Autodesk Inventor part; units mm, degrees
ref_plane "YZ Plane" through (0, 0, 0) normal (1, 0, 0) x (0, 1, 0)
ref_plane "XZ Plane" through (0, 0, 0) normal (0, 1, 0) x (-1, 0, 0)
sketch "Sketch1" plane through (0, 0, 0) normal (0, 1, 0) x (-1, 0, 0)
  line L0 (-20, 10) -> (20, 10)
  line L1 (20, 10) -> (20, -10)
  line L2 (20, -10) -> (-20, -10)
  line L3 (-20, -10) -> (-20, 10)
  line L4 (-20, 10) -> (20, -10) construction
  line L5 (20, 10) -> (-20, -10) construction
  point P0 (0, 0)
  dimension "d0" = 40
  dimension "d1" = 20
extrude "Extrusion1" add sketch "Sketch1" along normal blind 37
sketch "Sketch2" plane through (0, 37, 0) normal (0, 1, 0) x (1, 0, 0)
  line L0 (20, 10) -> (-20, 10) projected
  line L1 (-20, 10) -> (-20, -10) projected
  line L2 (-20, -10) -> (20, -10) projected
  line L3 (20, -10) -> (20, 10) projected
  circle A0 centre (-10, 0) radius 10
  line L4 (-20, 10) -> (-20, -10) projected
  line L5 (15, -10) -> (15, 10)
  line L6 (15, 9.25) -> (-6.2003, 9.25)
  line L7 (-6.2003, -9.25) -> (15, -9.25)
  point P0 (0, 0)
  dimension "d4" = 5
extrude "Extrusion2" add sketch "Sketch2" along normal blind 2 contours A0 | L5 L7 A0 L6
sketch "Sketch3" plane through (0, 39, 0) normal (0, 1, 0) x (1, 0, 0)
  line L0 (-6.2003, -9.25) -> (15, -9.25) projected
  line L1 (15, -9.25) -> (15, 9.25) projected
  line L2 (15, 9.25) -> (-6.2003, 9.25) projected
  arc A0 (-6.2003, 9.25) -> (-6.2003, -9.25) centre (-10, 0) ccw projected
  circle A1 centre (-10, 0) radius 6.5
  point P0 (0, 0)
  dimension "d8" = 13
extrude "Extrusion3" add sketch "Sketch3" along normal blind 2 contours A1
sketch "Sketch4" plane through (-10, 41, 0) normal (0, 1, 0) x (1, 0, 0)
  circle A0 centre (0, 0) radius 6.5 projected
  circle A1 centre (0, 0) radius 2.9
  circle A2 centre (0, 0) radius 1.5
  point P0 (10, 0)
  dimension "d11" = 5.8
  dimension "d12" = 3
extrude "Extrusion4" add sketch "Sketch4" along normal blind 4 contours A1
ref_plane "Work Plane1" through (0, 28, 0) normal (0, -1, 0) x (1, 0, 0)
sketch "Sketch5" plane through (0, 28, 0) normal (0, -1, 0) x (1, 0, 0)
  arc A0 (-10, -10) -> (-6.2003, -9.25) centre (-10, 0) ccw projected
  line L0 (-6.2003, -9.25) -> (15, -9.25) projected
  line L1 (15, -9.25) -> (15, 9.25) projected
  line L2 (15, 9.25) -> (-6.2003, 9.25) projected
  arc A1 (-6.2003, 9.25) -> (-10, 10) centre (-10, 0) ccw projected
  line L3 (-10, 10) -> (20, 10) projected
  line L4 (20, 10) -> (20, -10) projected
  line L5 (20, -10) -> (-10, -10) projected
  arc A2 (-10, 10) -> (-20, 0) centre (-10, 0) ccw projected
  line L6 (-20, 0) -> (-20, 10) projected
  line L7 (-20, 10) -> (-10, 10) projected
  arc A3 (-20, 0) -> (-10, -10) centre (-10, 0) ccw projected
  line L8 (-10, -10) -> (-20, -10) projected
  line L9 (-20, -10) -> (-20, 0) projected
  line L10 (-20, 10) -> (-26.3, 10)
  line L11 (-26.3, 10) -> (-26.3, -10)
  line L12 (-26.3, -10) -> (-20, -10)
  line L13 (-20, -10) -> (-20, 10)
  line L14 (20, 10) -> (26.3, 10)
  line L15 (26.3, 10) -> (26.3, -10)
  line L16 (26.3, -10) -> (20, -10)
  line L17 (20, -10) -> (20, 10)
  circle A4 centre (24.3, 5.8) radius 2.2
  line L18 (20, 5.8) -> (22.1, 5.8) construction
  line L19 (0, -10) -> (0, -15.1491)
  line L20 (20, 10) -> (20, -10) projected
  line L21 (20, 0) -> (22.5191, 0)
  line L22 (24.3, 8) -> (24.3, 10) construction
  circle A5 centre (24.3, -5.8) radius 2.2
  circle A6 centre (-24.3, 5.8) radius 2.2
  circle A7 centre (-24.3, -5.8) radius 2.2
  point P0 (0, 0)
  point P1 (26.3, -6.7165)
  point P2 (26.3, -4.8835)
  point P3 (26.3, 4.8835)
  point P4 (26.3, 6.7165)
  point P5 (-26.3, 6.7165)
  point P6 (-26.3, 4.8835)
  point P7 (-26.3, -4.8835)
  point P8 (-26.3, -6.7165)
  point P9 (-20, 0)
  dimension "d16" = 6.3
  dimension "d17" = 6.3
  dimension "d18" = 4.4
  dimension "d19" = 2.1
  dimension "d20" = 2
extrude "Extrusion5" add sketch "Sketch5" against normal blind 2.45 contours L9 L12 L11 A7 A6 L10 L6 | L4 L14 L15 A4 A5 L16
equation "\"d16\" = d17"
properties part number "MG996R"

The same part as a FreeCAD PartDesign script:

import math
import FreeCAD as App
import Part
import Sketcher

doc = App.newDocument("Part")
body = doc.addObject("PartDesign::Body", "Body")

sketch1 = body.newObject("Sketcher::SketchObject", "Sketch")
sketch1.AttachmentSupport = (doc.getObject("XZ_Plane"), [""])
sketch1.MapMode = "FlatFace"
sketch1.addGeometry([
    Part.LineSegment(App.Vector(-20, 10, 0), App.Vector(20, 10, 0)),
    Part.LineSegment(App.Vector(20, 10, 0), App.Vector(20, -10, 0)),
    Part.LineSegment(App.Vector(20, -10, 0), App.Vector(-20, -10, 0)),
    Part.LineSegment(App.Vector(-20, -10, 0), App.Vector(-20, 10, 0)),
], False)
sketch1.addConstraint([
    Sketcher.Constraint("Coincident", 0, 2, 1, 1),
    Sketcher.Constraint("Coincident", 1, 2, 2, 1),
    Sketcher.Constraint("Coincident", 2, 2, 3, 1),
    Sketcher.Constraint("Coincident", 3, 2, 0, 1),
    Sketcher.Constraint("Horizontal", 0),
    Sketcher.Constraint("Vertical", 1),
    Sketcher.Constraint("Horizontal", 2),
    Sketcher.Constraint("Vertical", 3),
    Sketcher.Constraint("Symmetric", 0, 2, 2, 2, -1, 1),
    Sketcher.Constraint("DistanceX", 0, 1, 0, 2, 40.0),
    Sketcher.Constraint("DistanceY", 1, 2, 1, 1, 20.0),
])
pad1 = body.newObject("PartDesign::Pad", "Pad")
pad1.Profile = sketch1
pad1.Length = 37
pad1.Reversed = True

sketch2 = body.newObject("Sketcher::SketchObject", "Sketch001")
sketch2.AttachmentSupport = (doc.getObject("XZ_Plane"), [""])
sketch2.MapMode = "FlatFace"
sketch2.AttachmentOffset = App.Placement(App.Vector(0, 0, -37), App.Rotation())
sketch2.addGeometry([
    Part.ArcOfCircle(Part.Circle(App.Vector(-10, 0, 0), App.Vector(0, 0, 1), 10), math.radians(68), math.radians(292)),
    Part.LineSegment(App.Vector(-6, 9, 0), App.Vector(15, 9, 0)),
    Part.LineSegment(App.Vector(15, 9, 0), App.Vector(15, -9, 0)),
    Part.LineSegment(App.Vector(15, -9, 0), App.Vector(-6, -9, 0)),
], False)
sketch2.addConstraint([
    Sketcher.Constraint("Coincident", 0, 1, 1, 1),
    Sketcher.Constraint("Coincident", 1, 2, 2, 1),
    Sketcher.Constraint("Coincident", 2, 2, 3, 1),
    Sketcher.Constraint("Coincident", 3, 2, 0, 2),
    Sketcher.Constraint("Horizontal", 1),
    Sketcher.Constraint("Vertical", 2),
    Sketcher.Constraint("Horizontal", 3),
    Sketcher.Constraint("Symmetric", 0, 1, 3, 2, -1),
    Sketcher.Constraint("Radius", 0, 10.0),
    Sketcher.Constraint("DistanceY", 2, 2, 2, 1, 18.5),
    Sketcher.Constraint("DistanceX", 0, 3, -1, 1, 10.0),
    Sketcher.Constraint("DistanceX", -1, 1, 1, 2, 15.0),
])
pad2 = body.newObject("PartDesign::Pad", "Pad001")
pad2.Profile = sketch2
pad2.Length = 2
pad2.Reversed = True

sketch3 = body.newObject("Sketcher::SketchObject", "Sketch002")
sketch3.AttachmentSupport = (doc.getObject("XZ_Plane"), [""])
sketch3.MapMode = "FlatFace"
sketch3.AttachmentOffset = App.Placement(App.Vector(0, 0, -39), App.Rotation())
sketch3.addGeometry(Part.Circle(App.Vector(-10, 0, 0), App.Vector(0, 0, 1), 6), False)
sketch3.addConstraint([
    Sketcher.Constraint("PointOnObject", 0, 3, -1),
    Sketcher.Constraint("Diameter", 0, 13.0),
    Sketcher.Constraint("DistanceX", 0, 3, -1, 1, 10.0),
])
pad3 = body.newObject("PartDesign::Pad", "Pad002")
pad3.Profile = sketch3
pad3.Length = 2
pad3.Reversed = True

sketch4 = body.newObject("Sketcher::SketchObject", "Sketch003")
sketch4.AttachmentSupport = (doc.getObject("XZ_Plane"), [""])
sketch4.MapMode = "FlatFace"
sketch4.AttachmentOffset = App.Placement(App.Vector(0, 0, -41), App.Rotation())
sketch4.addGeometry([
    Part.Circle(App.Vector(-10, 0, 0), App.Vector(0, 0, 1), 2.9),
    Part.Circle(App.Vector(-10, 0, 0), App.Vector(0, 0, 1), 1.5),
], False)
sketch4.addConstraint([
    Sketcher.Constraint("Coincident", 1, 3, 0, 3),
    Sketcher.Constraint("PointOnObject", 0, 3, -1),
    Sketcher.Constraint("Diameter", 1, 3.0),
    Sketcher.Constraint("Diameter", 0, 5.8),
    Sketcher.Constraint("DistanceX", 0, 3, -1, 1, 10.0),
])
pad4 = body.newObject("PartDesign::Pad", "Pad003")
pad4.Profile = sketch4
pad4.Length = 4
pad4.Reversed = True

sketch5 = body.newObject("Sketcher::SketchObject", "Sketch004")
sketch5.AttachmentSupport = (doc.getObject("XZ_Plane"), [""])
sketch5.MapMode = "FlatFace"
sketch5.AttachmentOffset = App.Placement(App.Vector(0, 0, -28), App.Rotation())
sketch5.addGeometry([
    Part.LineSegment(App.Vector(-20, -10, 0), App.Vector(-20, 10, 0)),
    Part.LineSegment(App.Vector(-20, 10, 0), App.Vector(-26.3, 10, 0)),
    Part.LineSegment(App.Vector(-26.3, 10, 0), App.Vector(-26.3, 6.7, 0)),
    Part.ArcOfCircle(Part.Circle(App.Vector(-24.3, 5.8, 0), App.Vector(0, 0, 1), 2.2), math.radians(-155), math.radians(155)),
    Part.LineSegment(App.Vector(-26.3, 4.9, 0), App.Vector(-26.3, -4.9, 0)),
    Part.ArcOfCircle(Part.Circle(App.Vector(-24.3, -5.8, 0), App.Vector(0, 0, 1), 2.2), math.radians(-155), math.radians(155)),
    Part.LineSegment(App.Vector(-26.3, -6.7, 0), App.Vector(-26.3, -10, 0)),
    Part.LineSegment(App.Vector(-26.3, -10, 0), App.Vector(-20, -10, 0)),
    Part.LineSegment(App.Vector(20, 10, 0), App.Vector(20, -10, 0)),
    Part.LineSegment(App.Vector(20, -10, 0), App.Vector(26.3, -10, 0)),
    Part.LineSegment(App.Vector(26.3, -10, 0), App.Vector(26.3, -6.7, 0)),
    Part.ArcOfCircle(Part.Circle(App.Vector(24.3, -5.8, 0), App.Vector(0, 0, 1), 2.2), math.radians(25), math.radians(335)),
    Part.LineSegment(App.Vector(26.3, -4.9, 0), App.Vector(26.3, 4.9, 0)),
    Part.ArcOfCircle(Part.Circle(App.Vector(24.3, 5.8, 0), App.Vector(0, 0, 1), 2.2), math.radians(25), math.radians(335)),
    Part.LineSegment(App.Vector(26.3, 6.7, 0), App.Vector(26.3, 10, 0)),
    Part.LineSegment(App.Vector(26.3, 10, 0), App.Vector(20, 10, 0)),
], False)
sketch5.addConstraint([
    Sketcher.Constraint("Coincident", 0, 2, 1, 1),
    Sketcher.Constraint("Coincident", 1, 2, 2, 1),
    Sketcher.Constraint("Coincident", 2, 2, 3, 2),
    Sketcher.Constraint("Coincident", 3, 1, 4, 1),
    Sketcher.Constraint("Coincident", 4, 2, 5, 2),
    Sketcher.Constraint("Coincident", 5, 1, 6, 1),
    Sketcher.Constraint("Coincident", 6, 2, 7, 1),
    Sketcher.Constraint("Coincident", 7, 2, 0, 1),
    Sketcher.Constraint("Coincident", 8, 2, 9, 1),
    Sketcher.Constraint("Coincident", 9, 2, 10, 1),
    Sketcher.Constraint("Coincident", 10, 2, 11, 2),
    Sketcher.Constraint("Coincident", 11, 1, 12, 1),
    Sketcher.Constraint("Coincident", 12, 2, 13, 2),
    Sketcher.Constraint("Coincident", 13, 1, 14, 1),
    Sketcher.Constraint("Coincident", 14, 2, 15, 1),
    Sketcher.Constraint("Coincident", 15, 2, 8, 1),
    Sketcher.Constraint("Vertical", 0),
    Sketcher.Constraint("Horizontal", 1),
    Sketcher.Constraint("Vertical", 2),
    Sketcher.Constraint("Vertical", 4),
    Sketcher.Constraint("Vertical", 6),
    Sketcher.Constraint("Horizontal", 7),
    Sketcher.Constraint("Vertical", 8),
    Sketcher.Constraint("Horizontal", 9),
    Sketcher.Constraint("Vertical", 10),
    Sketcher.Constraint("Vertical", 12),
    Sketcher.Constraint("Vertical", 14),
    Sketcher.Constraint("Horizontal", 15),
    Sketcher.Constraint("Equal", 3, 5),
    Sketcher.Constraint("Equal", 5, 11),
    Sketcher.Constraint("Equal", 11, 13),
    Sketcher.Constraint("Symmetric", 3, 3, 11, 3, -1, 1),
    Sketcher.Constraint("Symmetric", 5, 3, 13, 3, -1, 1),
    Sketcher.Constraint("Symmetric", 0, 2, 8, 2, -1, 1),
    Sketcher.Constraint("Symmetric", 6, 2, 14, 2, -1, 1),
    Sketcher.Constraint("Symmetric", 5, 3, 11, 3, -2),
    Sketcher.Constraint("Symmetric", 6, 2, 9, 2, -2),
    Sketcher.Constraint("Horizontal", 4, 2, 11, 1),
    Sketcher.Constraint("Horizontal", 2, 2, 13, 1),
    Sketcher.Constraint("Vertical", 2, 2, 3, 1),
    Sketcher.Constraint("Radius", 3, 2.2),
    Sketcher.Constraint("DistanceX", 1, 2, 1, 1, 6.3),
    Sketcher.Constraint("DistanceX", 1, 2, 3, 3, 2.0),
    Sketcher.Constraint("DistanceY", 0, 1, 0, 2, 20.0),
    Sketcher.Constraint("DistanceX", 0, 2, -1, 1, 20.0),
    Sketcher.Constraint("DistanceY", -1, 1, 3, 3, 5.8),
])
pad5 = body.newObject("PartDesign::Pad", "Pad004")
pad5.Profile = sketch5
pad5.Length = 2.45
pad5.Reversed = True

doc.recompute()
